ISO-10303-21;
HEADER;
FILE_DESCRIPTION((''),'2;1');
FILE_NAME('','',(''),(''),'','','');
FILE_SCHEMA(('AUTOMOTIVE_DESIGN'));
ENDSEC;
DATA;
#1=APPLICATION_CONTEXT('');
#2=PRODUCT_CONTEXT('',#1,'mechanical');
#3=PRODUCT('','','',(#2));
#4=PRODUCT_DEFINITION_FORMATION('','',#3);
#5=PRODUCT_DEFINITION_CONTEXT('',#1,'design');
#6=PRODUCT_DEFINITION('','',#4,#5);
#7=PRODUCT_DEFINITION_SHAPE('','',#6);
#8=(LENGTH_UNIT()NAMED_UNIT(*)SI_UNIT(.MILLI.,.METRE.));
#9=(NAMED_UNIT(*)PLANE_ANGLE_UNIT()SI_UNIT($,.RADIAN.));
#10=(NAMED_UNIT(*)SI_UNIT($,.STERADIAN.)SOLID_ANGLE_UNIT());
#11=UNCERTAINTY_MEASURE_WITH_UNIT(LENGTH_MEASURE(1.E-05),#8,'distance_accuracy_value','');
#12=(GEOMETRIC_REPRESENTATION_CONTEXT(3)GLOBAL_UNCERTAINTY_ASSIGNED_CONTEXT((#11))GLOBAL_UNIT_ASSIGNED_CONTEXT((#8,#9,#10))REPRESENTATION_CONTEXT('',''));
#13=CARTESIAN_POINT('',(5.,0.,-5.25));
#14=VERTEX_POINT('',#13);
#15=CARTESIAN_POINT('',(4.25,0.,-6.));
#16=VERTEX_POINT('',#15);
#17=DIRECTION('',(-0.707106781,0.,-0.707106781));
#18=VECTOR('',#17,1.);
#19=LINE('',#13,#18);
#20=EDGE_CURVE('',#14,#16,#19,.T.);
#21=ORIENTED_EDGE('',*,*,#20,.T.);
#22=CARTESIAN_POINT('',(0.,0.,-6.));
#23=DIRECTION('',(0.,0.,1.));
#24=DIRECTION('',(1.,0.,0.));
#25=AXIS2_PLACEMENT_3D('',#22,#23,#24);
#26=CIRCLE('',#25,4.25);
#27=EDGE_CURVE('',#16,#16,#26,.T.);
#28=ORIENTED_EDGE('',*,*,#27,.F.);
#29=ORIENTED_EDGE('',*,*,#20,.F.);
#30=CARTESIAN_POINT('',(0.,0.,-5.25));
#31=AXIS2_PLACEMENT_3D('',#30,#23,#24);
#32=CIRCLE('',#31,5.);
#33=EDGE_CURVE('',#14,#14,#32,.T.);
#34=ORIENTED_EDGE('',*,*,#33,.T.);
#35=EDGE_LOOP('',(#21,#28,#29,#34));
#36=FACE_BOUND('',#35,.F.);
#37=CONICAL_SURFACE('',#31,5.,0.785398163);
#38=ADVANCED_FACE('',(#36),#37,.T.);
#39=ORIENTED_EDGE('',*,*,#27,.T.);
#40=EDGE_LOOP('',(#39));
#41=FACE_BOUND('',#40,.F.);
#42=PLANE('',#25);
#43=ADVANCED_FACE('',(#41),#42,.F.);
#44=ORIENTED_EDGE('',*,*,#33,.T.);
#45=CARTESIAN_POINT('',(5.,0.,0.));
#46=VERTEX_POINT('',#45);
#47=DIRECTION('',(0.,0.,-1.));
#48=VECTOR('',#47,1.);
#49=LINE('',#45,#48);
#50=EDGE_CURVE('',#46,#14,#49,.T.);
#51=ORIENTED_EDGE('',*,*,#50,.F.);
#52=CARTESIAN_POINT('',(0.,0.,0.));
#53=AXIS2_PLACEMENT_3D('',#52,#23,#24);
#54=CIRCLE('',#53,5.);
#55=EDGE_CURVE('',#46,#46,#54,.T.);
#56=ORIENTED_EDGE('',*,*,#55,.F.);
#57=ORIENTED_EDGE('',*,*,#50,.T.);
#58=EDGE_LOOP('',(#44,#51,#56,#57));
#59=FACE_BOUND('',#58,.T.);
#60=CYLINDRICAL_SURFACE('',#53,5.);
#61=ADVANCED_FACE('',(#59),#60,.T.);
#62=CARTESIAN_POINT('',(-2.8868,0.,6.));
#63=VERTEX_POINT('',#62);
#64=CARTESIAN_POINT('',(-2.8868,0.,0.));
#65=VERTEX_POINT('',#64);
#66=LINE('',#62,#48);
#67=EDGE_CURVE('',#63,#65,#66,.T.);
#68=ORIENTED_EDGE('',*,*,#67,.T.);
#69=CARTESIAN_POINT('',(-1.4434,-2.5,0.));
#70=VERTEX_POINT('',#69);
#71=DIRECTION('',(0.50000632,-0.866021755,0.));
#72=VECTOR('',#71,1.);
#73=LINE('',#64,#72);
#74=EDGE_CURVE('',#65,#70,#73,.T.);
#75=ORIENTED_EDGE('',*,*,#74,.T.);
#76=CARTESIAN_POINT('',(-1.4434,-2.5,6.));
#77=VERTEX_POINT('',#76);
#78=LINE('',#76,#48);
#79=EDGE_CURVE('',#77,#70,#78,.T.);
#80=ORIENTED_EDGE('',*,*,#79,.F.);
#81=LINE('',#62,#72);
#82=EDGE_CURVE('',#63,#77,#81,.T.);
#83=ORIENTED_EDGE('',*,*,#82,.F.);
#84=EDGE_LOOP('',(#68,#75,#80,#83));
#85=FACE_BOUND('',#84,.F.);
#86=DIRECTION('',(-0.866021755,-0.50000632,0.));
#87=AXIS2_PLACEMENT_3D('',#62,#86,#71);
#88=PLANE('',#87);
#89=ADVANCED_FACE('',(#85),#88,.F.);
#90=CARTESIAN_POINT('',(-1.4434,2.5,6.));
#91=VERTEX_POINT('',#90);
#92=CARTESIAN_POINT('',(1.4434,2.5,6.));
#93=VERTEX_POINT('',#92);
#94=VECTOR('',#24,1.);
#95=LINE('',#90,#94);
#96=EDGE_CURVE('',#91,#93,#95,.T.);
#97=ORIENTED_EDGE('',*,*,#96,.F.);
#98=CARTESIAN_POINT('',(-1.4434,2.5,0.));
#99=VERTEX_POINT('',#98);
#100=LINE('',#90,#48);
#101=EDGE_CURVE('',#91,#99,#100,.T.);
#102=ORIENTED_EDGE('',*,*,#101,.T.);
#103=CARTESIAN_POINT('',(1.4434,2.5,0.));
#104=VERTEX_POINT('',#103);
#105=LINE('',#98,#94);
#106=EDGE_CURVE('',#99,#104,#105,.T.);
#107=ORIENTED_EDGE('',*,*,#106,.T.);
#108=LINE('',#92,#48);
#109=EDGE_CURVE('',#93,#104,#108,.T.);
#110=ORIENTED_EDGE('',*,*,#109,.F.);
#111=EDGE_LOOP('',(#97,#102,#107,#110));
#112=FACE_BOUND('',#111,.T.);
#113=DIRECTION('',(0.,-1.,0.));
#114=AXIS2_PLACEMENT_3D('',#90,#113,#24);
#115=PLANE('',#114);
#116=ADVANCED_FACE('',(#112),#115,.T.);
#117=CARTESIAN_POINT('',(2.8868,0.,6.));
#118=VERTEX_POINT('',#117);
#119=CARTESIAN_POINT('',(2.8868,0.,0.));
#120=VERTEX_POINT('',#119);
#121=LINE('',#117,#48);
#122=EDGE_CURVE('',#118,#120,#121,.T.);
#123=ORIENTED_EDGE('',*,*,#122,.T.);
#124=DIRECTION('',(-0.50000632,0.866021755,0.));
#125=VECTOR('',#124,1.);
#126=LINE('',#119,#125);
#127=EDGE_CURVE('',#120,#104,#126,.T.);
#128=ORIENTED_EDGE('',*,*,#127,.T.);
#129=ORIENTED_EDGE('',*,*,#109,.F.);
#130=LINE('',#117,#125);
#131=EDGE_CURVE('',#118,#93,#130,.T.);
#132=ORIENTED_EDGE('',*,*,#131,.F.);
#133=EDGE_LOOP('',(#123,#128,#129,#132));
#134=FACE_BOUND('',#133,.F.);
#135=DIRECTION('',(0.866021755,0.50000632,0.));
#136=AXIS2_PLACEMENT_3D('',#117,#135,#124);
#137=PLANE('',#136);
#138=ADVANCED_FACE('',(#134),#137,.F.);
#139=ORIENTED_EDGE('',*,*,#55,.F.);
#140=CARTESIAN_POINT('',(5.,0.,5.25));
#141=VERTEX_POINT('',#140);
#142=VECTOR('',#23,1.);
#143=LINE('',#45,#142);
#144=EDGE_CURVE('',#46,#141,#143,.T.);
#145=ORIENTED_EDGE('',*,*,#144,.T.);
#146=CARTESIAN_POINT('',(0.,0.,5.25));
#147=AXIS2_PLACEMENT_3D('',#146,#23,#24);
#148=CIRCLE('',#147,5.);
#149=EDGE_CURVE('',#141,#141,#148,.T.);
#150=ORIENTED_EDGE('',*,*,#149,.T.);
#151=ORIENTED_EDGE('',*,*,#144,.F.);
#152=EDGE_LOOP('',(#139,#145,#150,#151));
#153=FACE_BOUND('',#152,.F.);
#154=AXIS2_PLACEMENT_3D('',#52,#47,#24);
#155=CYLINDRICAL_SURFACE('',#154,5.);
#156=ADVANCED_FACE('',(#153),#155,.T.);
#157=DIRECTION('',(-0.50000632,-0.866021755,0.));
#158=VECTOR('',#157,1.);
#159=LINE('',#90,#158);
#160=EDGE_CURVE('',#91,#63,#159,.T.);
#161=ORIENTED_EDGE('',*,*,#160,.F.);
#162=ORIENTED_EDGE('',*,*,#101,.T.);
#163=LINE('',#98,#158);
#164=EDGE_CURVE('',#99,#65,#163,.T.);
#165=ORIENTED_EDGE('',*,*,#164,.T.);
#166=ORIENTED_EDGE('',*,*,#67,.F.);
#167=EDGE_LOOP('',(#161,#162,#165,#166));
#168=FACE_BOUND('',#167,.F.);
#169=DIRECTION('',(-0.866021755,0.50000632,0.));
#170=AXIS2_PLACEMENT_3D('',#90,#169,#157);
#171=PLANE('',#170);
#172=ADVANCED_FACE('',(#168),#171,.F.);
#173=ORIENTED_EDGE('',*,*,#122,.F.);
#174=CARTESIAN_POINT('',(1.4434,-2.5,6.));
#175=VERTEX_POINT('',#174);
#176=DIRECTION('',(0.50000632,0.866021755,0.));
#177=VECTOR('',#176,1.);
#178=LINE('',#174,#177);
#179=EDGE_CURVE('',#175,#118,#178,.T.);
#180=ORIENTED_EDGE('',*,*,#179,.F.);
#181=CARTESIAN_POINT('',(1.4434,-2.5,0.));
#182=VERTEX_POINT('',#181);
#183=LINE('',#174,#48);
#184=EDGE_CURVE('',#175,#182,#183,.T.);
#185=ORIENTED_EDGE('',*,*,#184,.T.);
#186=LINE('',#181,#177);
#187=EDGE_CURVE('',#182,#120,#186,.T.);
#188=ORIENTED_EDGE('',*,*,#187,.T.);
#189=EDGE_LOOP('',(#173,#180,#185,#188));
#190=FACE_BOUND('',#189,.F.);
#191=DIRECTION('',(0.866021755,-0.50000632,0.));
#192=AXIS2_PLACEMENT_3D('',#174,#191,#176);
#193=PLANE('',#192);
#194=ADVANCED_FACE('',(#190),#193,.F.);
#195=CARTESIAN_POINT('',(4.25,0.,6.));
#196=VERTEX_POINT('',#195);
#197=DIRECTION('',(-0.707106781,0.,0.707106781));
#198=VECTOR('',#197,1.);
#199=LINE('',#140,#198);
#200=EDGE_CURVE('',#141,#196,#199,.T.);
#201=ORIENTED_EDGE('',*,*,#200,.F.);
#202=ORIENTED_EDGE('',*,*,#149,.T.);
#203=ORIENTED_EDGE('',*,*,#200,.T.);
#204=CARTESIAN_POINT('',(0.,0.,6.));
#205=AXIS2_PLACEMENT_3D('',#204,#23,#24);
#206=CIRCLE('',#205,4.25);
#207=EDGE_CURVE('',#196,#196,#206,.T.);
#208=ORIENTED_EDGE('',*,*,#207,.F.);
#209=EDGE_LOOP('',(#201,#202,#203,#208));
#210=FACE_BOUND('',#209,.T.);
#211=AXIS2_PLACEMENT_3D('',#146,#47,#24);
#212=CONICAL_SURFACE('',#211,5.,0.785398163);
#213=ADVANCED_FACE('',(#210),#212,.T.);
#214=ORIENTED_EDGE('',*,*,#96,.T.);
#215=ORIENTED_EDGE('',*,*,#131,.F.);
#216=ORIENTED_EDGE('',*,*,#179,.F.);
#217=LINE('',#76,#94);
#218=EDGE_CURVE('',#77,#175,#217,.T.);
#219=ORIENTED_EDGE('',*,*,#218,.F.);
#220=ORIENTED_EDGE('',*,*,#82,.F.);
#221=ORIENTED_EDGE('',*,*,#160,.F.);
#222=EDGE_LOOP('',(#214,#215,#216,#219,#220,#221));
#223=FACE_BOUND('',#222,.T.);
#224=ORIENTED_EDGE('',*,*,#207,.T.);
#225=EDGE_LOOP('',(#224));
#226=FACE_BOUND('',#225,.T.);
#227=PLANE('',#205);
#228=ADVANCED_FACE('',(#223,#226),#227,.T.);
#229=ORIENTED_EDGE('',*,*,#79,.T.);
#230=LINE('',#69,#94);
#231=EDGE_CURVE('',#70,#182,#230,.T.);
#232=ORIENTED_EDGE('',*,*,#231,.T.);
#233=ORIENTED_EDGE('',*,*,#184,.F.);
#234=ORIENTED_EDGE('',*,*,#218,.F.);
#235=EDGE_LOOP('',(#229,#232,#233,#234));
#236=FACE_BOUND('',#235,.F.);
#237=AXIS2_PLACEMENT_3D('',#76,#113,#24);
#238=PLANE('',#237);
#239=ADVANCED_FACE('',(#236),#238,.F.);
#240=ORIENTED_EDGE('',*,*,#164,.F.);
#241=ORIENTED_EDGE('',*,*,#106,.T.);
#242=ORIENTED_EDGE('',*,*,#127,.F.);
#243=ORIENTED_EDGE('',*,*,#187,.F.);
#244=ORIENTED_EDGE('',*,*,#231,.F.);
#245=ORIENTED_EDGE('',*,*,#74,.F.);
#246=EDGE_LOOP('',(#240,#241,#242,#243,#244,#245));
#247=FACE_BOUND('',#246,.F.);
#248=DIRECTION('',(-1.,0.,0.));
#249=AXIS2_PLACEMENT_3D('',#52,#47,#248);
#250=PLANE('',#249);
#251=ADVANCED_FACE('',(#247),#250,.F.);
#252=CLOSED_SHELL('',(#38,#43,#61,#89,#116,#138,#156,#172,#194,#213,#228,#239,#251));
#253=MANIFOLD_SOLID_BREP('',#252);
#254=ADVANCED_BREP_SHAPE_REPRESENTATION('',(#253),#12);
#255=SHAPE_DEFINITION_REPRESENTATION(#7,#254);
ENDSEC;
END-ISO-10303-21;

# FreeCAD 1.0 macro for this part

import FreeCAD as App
import Part
import Sketcher
from FreeCAD import Vector
Q = App.Units.Quantity


def edges_at(feature, points):
    """Names of the edges that pass closest to the given points."""
    edges = feature.Shape.Edges
    near = lambda p: min(range(len(edges)), key=lambda i: edges[i].distToShape(Part.Vertex(*p))[0])
    return sorted({f"Edge{near(p) + 1}" for p in points})

doc = App.newDocument("Part")
body = doc.addObject("PartDesign::Body", "Body")

sketch1 = body.newObject("Sketcher::SketchObject", "Sketch")
sketch1.AttachmentSupport = (doc.getObject("XY_Plane"), [""])
sketch1.MapMode = "FlatFace"
sketch1.addGeometry(Part.Circle(Vector(0, 0, 0), Vector(0, 0, 1), 5), False)
sketch1.addConstraint(Sketcher.Constraint("Coincident", 0, 3, -1, 1))
sketch1.addConstraint(Sketcher.Constraint("Diameter", 0, Q("10 mm")))
pad1 = body.newObject("PartDesign::Pad", "Pad")
pad1.Profile = sketch1
pad1.Length = 12
pad1.Midplane = True
doc.recompute()

chamfer = body.newObject("PartDesign::Chamfer", "Chamfer")
chamfer.Base = (pad1, edges_at(pad1, [(-5, 0, -6), (-5, 0, 6)]))
chamfer.Size = 0.75

sketch2 = body.newObject("Sketcher::SketchObject", "Sketch001")
sketch2.AttachmentSupport = (doc.getObject("XY_Plane"), [""])
sketch2.MapMode = "FlatFace"
sketch2.AttachmentOffset = App.Placement(Vector(0, 0, 6), App.Rotation())
sketch2.addGeometry(Part.LineSegment(Vector(1.4, 2.5, 0), Vector(-1.4, 2.5, 0)), False)
sketch2.addGeometry(Part.LineSegment(Vector(-1.4, 2.5, 0), Vector(-2.9, 0, 0)), False)
sketch2.addGeometry(Part.LineSegment(Vector(-2.9, 0, 0), Vector(-1.4, -2.5, 0)), False)
sketch2.addGeometry(Part.LineSegment(Vector(-1.4, -2.5, 0), Vector(1.4, -2.5, 0)), False)
sketch2.addGeometry(Part.LineSegment(Vector(1.4, -2.5, 0), Vector(2.9, 0, 0)), False)
sketch2.addGeometry(Part.LineSegment(Vector(2.9, 0, 0), Vector(1.4, 2.5, 0)), False)
sketch2.addConstraint(Sketcher.Constraint("Coincident", 0, 2, 1, 1))
sketch2.addConstraint(Sketcher.Constraint("Coincident", 1, 2, 2, 1))
sketch2.addConstraint(Sketcher.Constraint("Coincident", 2, 2, 3, 1))
sketch2.addConstraint(Sketcher.Constraint("Coincident", 3, 2, 4, 1))
sketch2.addConstraint(Sketcher.Constraint("Coincident", 4, 2, 5, 1))
sketch2.addConstraint(Sketcher.Constraint("Coincident", 5, 2, 0, 1))
sketch2.addConstraint(Sketcher.Constraint("Horizontal", 0))
sketch2.addConstraint(Sketcher.Constraint("Horizontal", 3))
sketch2.addConstraint(Sketcher.Constraint("Symmetric", 0, 2, 3, 2, -1, 1))
sketch2.addConstraint(Sketcher.Constraint("Symmetric", 1, 2, 4, 2, -1, 1))
sketch2.addConstraint(Sketcher.Constraint("PointOnObject", 1, 2, -1))
sketch2.addConstraint(Sketcher.Constraint("Parallel", 2, 5))
sketch2.addConstraint(Sketcher.Constraint("Vertical", 0, 2, 2, 2))
sketch2.addConstraint(Sketcher.Constraint("Angle", 1, Q("-120.0004 deg")))
sketch2.addConstraint(Sketcher.Constraint("DistanceY", 2, 2, 0, 2, Q("5 mm")))
sketch2.addConstraint(Sketcher.Constraint("DistanceX", 0, 2, 0, 1, Q("2.8868 mm")))
pocket1 = body.newObject("PartDesign::Pocket", "Pocket")
pocket1.Profile = sketch2
pocket1.Length = 6

doc.recompute()
